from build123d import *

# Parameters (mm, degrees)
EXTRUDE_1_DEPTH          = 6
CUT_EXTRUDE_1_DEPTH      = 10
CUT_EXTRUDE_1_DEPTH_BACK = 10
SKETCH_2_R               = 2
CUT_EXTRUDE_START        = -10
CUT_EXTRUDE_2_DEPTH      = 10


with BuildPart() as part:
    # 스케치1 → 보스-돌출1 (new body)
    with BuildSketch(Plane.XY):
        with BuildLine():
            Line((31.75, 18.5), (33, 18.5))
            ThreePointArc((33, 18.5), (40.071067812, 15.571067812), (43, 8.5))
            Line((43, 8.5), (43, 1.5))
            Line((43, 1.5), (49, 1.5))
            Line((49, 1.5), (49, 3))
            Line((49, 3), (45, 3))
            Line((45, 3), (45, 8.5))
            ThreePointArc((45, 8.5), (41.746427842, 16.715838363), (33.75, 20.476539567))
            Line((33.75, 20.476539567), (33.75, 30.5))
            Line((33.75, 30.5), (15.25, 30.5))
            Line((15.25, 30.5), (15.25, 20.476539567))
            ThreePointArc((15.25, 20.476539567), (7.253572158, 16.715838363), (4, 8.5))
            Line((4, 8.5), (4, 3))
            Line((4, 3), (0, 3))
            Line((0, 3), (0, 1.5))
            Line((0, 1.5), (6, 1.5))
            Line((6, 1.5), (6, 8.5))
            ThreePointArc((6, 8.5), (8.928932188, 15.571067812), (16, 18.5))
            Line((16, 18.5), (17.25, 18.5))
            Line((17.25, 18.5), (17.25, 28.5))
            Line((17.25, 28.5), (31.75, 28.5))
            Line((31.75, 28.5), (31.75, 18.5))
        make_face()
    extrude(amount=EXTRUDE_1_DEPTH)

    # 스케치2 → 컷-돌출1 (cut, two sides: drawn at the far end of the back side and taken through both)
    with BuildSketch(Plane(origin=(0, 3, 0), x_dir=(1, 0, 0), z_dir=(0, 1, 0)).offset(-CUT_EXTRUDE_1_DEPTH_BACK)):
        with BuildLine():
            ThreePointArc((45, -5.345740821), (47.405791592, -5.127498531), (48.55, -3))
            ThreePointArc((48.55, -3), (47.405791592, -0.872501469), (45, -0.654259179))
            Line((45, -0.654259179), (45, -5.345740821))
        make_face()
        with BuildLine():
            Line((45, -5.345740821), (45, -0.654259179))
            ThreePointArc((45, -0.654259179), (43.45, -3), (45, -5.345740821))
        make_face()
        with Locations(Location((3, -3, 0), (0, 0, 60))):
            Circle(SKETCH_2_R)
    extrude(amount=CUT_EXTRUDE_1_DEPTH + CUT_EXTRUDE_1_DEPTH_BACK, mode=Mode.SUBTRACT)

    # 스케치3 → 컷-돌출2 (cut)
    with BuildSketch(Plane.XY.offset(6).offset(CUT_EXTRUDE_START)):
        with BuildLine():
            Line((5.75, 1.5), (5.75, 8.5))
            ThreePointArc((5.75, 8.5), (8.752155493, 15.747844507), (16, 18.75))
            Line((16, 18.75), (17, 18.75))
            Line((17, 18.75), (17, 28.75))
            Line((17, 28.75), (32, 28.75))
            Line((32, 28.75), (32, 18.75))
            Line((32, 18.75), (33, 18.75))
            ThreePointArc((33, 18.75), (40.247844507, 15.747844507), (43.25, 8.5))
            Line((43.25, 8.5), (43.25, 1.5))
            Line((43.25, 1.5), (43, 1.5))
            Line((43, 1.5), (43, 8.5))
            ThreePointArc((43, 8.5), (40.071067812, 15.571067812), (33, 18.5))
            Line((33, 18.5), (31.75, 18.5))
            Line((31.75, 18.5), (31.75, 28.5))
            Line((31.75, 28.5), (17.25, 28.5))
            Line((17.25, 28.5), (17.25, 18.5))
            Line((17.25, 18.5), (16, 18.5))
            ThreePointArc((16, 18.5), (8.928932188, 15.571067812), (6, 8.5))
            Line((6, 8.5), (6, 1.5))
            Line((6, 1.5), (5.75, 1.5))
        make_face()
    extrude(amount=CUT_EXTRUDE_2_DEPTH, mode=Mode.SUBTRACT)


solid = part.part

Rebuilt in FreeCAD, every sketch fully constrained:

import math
import FreeCAD as App
import Part
import Sketcher
Q = App.Units.Quantity

doc = App.newDocument("Part")
body = doc.addObject("PartDesign::Body", "Body")

sketch1 = body.newObject("Sketcher::SketchObject", "Sketch")
sketch1.AttachmentSupport = (doc.getObject("XY_Plane"), [""])
sketch1.MapMode = "FlatFace"
sketch1.addGeometry([
    Part.LineSegment(App.Vector(31.8, 18.5, 0), App.Vector(33, 18.5, 0)),
    Part.ArcOfCircle(Part.Circle(App.Vector(33, 8.5, 0), App.Vector(0, 0, 1), 10), math.radians(0), math.radians(90)),
    Part.LineSegment(App.Vector(43, 8.5, 0), App.Vector(43, 1.5, 0)),
    Part.LineSegment(App.Vector(43, 1.5, 0), App.Vector(49, 1.5, 0)),
    Part.LineSegment(App.Vector(49, 1.5, 0), App.Vector(49, 3, 0)),
    Part.LineSegment(App.Vector(49, 3, 0), App.Vector(45, 3, 0)),
    Part.LineSegment(App.Vector(45, 3, 0), App.Vector(45, 8.5, 0)),
    Part.ArcOfCircle(Part.Circle(App.Vector(33, 8.5, 0), App.Vector(0, 0, 1), 12), math.radians(0), math.radians(86)),
    Part.LineSegment(App.Vector(33.8, 20.5, 0), App.Vector(33.8, 30.5, 0)),
    Part.LineSegment(App.Vector(33.8, 30.5, 0), App.Vector(15.2, 30.5, 0)),
    Part.LineSegment(App.Vector(15.2, 30.5, 0), App.Vector(15.2, 20.5, 0)),
    Part.ArcOfCircle(Part.Circle(App.Vector(16, 8.5, 0), App.Vector(0, 0, 1), 12), math.radians(94), math.radians(180)),
    Part.LineSegment(App.Vector(4, 8.5, 0), App.Vector(4, 3, 0)),
    Part.LineSegment(App.Vector(4, 3, 0), App.Vector(0, 3, 0)),
    Part.LineSegment(App.Vector(0, 3, 0), App.Vector(0, 1.5, 0)),
    Part.LineSegment(App.Vector(0, 1.5, 0), App.Vector(6, 1.5, 0)),
    Part.LineSegment(App.Vector(6, 1.5, 0), App.Vector(6, 8.5, 0)),
    Part.ArcOfCircle(Part.Circle(App.Vector(16, 8.5, 0), App.Vector(0, 0, 1), 10), math.radians(90), math.radians(180)),
    Part.LineSegment(App.Vector(16, 18.5, 0), App.Vector(17.2, 18.5, 0)),
    Part.LineSegment(App.Vector(17.2, 18.5, 0), App.Vector(17.2, 28.5, 0)),
    Part.LineSegment(App.Vector(17.2, 28.5, 0), App.Vector(31.8, 28.5, 0)),
    Part.LineSegment(App.Vector(31.8, 28.5, 0), App.Vector(31.8, 18.5, 0)),
], False)
sketch1.addConstraint([
    Sketcher.Constraint("Tangent", 0, 2, 1, 2),
    Sketcher.Constraint("Tangent", 1, 1, 2, 1),
    Sketcher.Constraint("Coincident", 2, 2, 3, 1),
    Sketcher.Constraint("Coincident", 3, 2, 4, 1),
    Sketcher.Constraint("Coincident", 4, 2, 5, 1),
    Sketcher.Constraint("Coincident", 5, 2, 6, 1),
    Sketcher.Constraint("Tangent", 6, 2, 7, 1),
    Sketcher.Constraint("Coincident", 7, 2, 8, 1),
    Sketcher.Constraint("Coincident", 8, 2, 9, 1),
    Sketcher.Constraint("Coincident", 9, 2, 10, 1),
    Sketcher.Constraint("Coincident", 10, 2, 11, 1),
    Sketcher.Constraint("Tangent", 11, 2, 12, 1),
    Sketcher.Constraint("Coincident", 12, 2, 13, 1),
    Sketcher.Constraint("Coincident", 13, 2, 14, 1),
    Sketcher.Constraint("Coincident", 14, 2, 15, 1),
    Sketcher.Constraint("Coincident", 15, 2, 16, 1),
    Sketcher.Constraint("Tangent", 16, 2, 17, 2),
    Sketcher.Constraint("Tangent", 17, 1, 18, 1),
    Sketcher.Constraint("Coincident", 18, 2, 19, 1),
    Sketcher.Constraint("Coincident", 19, 2, 20, 1),
    Sketcher.Constraint("Coincident", 20, 2, 21, 1),
    Sketcher.Constraint("Coincident", 21, 2, 0, 1),
    Sketcher.Constraint("Horizontal", 0),
    Sketcher.Constraint("Vertical", 2),
    Sketcher.Constraint("Horizontal", 3),
    Sketcher.Constraint("Vertical", 4),
    Sketcher.Constraint("Horizontal", 5),
    Sketcher.Constraint("Vertical", 6),
    Sketcher.Constraint("Vertical", 8),
    Sketcher.Constraint("Horizontal", 9),
    Sketcher.Constraint("Vertical", 10),
    Sketcher.Constraint("Vertical", 12),
    Sketcher.Constraint("Horizontal", 13),
    Sketcher.Constraint("Vertical", 14),
    Sketcher.Constraint("Horizontal", 15),
    Sketcher.Constraint("Vertical", 16),
    Sketcher.Constraint("Horizontal", 18),
    Sketcher.Constraint("Vertical", 19),
    Sketcher.Constraint("Horizontal", 20),
    Sketcher.Constraint("Vertical", 21),
    Sketcher.Constraint("Coincident", 7, 3, 1, 3),
    Sketcher.Constraint("Coincident", 17, 3, 11, 3),
    Sketcher.Constraint("Equal", 7, 11),
    Sketcher.Constraint("Equal", 1, 17),
    Sketcher.Constraint("PointOnObject", 13, 2, -2),
    Sketcher.Constraint("Horizontal", 7, 3, 11, 3),
    Sketcher.Constraint("Horizontal", 7, 2, 10, 2),
    Sketcher.Constraint("Horizontal", 5, 2, 12, 2),
    Sketcher.Constraint("Horizontal", 3, 2, 14, 2),
    Sketcher.Constraint("Equal", 5, 13),
    Sketcher.Constraint("Equal", 0, 18),
    Sketcher.Constraint("Radius", 1, Q("10 mm")),
    Sketcher.Constraint("Radius", 7, Q("12 mm")),
    Sketcher.Constraint("DistanceX", 3, 1, 3, 2, Q("6 mm")),
    Sketcher.Constraint("DistanceY", 2, 2, 2, 1, Q("7 mm")),
    Sketcher.Constraint("DistanceY", 19, 1, 19, 2, Q("10 mm")),
    Sketcher.Constraint("DistanceX", 9, 2, 9, 1, Q("18.5 mm")),
    Sketcher.Constraint("DistanceX", 20, 1, 20, 2, Q("14.5 mm")),
    Sketcher.Constraint("DistanceY", 4, 1, 4, 2, Q("1.5 mm")),
    Sketcher.Constraint("DistanceX", -1, 1, 1, 3, Q("33 mm")),
    Sketcher.Constraint("DistanceY", -1, 1, 4, 2, Q("3 mm")),
    Sketcher.Constraint("DistanceY", 0, 2, 8, 2, Q("12 mm")),
])
pad1 = body.newObject("PartDesign::Pad", "Pad")
pad1.Profile = sketch1
pad1.Length = 6

sketch2 = body.newObject("Sketcher::SketchObject", "Sketch001")
sketch2.AttachmentSupport = (doc.getObject("XZ_Plane"), [""])
sketch2.MapMode = "FlatFace"
sketch2.AttachmentOffset = App.Placement(App.Vector(0, 0, -3), App.Rotation())
sketch2.addGeometry([
    Part.ArcOfCircle(Part.Circle(App.Vector(46, 3, 0), App.Vector(0, 0, 1), 2.5), math.radians(0), math.radians(113)),
    Part.ArcOfCircle(Part.Circle(App.Vector(46, 3, 0), App.Vector(0, 0, 1), 2.5), math.radians(-113), math.radians(0)),
    Part.ArcOfCircle(Part.Circle(App.Vector(46, 3, 0), App.Vector(0, 0, 1), 2.5), math.radians(113), math.radians(247)),
    Part.Circle(App.Vector(3, 3, 0), App.Vector(0, 0, 1), 2),
], False)
sketch2.addConstraint([
    Sketcher.Constraint("Tangent", 0, 1, 1, 2),
    Sketcher.Constraint("Tangent", 1, 1, 2, 2),
    Sketcher.Constraint("Tangent", 2, 1, 0, 2),
    Sketcher.Constraint("Horizontal", 2, 3, 3, 3),
    Sketcher.Constraint("Horizontal", 3, 3, 0, 1),
    Sketcher.Constraint("Vertical", 1, 1, 2, 1),
    Sketcher.Constraint("Diameter", 3, Q("4 mm")),
    Sketcher.Constraint("Radius", 0, Q("2.55 mm")),
    Sketcher.Constraint("DistanceX", -1, 1, 0, 3, Q("46 mm")),
    Sketcher.Constraint("DistanceY", -1, 1, 0, 3, Q("3 mm")),
    Sketcher.Constraint("DistanceX", -1, 1, 3, 3, Q("3 mm")),
    Sketcher.Constraint("DistanceX", -1, 1, 1, 1, Q("45 mm")),
])
pocket1 = body.newObject("PartDesign::Pocket", "Pocket")
pocket1.Profile = sketch2
pocket1.Type = "TwoLengths"
pocket1.Length = 10
pocket1.Length2 = 10

sketch3 = body.newObject("Sketcher::SketchObject", "Sketch002")
sketch3.AttachmentSupport = (doc.getObject("XY_Plane"), [""])
sketch3.MapMode = "FlatFace"
sketch3.AttachmentOffset = App.Placement(App.Vector(0, 0, -4), App.Rotation())
sketch3.addGeometry([
    Part.LineSegment(App.Vector(5.75, 8.5, 0), App.Vector(5.75, 1.5, 0)),
    Part.LineSegment(App.Vector(5.75, 1.5, 0), App.Vector(6, 1.5, 0)),
    Part.LineSegment(App.Vector(6, 1.5, 0), App.Vector(6, 8.5, 0)),
    Part.ArcOfCircle(Part.Circle(App.Vector(16, 8.5, 0), App.Vector(0, 0, 1), 10), math.radians(90), math.radians(180)),
    Part.LineSegment(App.Vector(16, 18.5, 0), App.Vector(17.25, 18.5, 0)),
    Part.LineSegment(App.Vector(17.25, 18.5, 0), App.Vector(17.25, 28.5, 0)),
    Part.LineSegment(App.Vector(17.25, 28.5, 0), App.Vector(31.75, 28.5, 0)),
    Part.LineSegment(App.Vector(31.75, 28.5, 0), App.Vector(31.75, 18.5, 0)),
    Part.LineSegment(App.Vector(31.75, 18.5, 0), App.Vector(33, 18.5, 0)),
    Part.ArcOfCircle(Part.Circle(App.Vector(33, 8.5, 0), App.Vector(0, 0, 1), 10), math.radians(0), math.radians(90)),
    Part.LineSegment(App.Vector(43, 8.5, 0), App.Vector(43, 1.5, 0)),
    Part.LineSegment(App.Vector(43, 1.5, 0), App.Vector(43.25, 1.5, 0)),
    Part.LineSegment(App.Vector(43.25, 1.5, 0), App.Vector(43.25, 8.5, 0)),
    Part.ArcOfCircle(Part.Circle(App.Vector(33, 8.5, 0), App.Vector(0, 0, 1), 10.25), math.radians(0), math.radians(90)),
    Part.LineSegment(App.Vector(33, 18.75, 0), App.Vector(32, 18.75, 0)),
    Part.LineSegment(App.Vector(32, 18.75, 0), App.Vector(32, 28.75, 0)),
    Part.LineSegment(App.Vector(32, 28.75, 0), App.Vector(17, 28.75, 0)),
    Part.LineSegment(App.Vector(17, 28.75, 0), App.Vector(17, 18.75, 0)),
    Part.LineSegment(App.Vector(17, 18.75, 0), App.Vector(16, 18.75, 0)),
    Part.ArcOfCircle(Part.Circle(App.Vector(16, 8.5, 0), App.Vector(0, 0, 1), 10.25), math.radians(90), math.radians(180)),
], False)
sketch3.addConstraint([
    Sketcher.Constraint("Coincident", 0, 2, 1, 1),
    Sketcher.Constraint("Coincident", 1, 2, 2, 1),
    Sketcher.Constraint("Tangent", 2, 2, 3, 2),
    Sketcher.Constraint("Tangent", 3, 1, 4, 1),
    Sketcher.Constraint("Coincident", 4, 2, 5, 1),
    Sketcher.Constraint("Coincident", 5, 2, 6, 1),
    Sketcher.Constraint("Coincident", 6, 2, 7, 1),
    Sketcher.Constraint("Coincident", 7, 2, 8, 1),
    Sketcher.Constraint("Tangent", 8, 2, 9, 2),
    Sketcher.Constraint("Tangent", 9, 1, 10, 1),
    Sketcher.Constraint("Coincident", 10, 2, 11, 1),
    Sketcher.Constraint("Coincident", 11, 2, 12, 1),
    Sketcher.Constraint("Tangent", 12, 2, 13, 1),
    Sketcher.Constraint("Tangent", 13, 2, 14, 1),
    Sketcher.Constraint("Coincident", 14, 2, 15, 1),
    Sketcher.Constraint("Coincident", 15, 2, 16, 1),
    Sketcher.Constraint("Coincident", 16, 2, 17, 1),
    Sketcher.Constraint("Coincident", 17, 2, 18, 1),
    Sketcher.Constraint("Tangent", 18, 2, 19, 1),
    Sketcher.Constraint("Tangent", 19, 2, 0, 1),
    Sketcher.Constraint("Vertical", 0),
    Sketcher.Constraint("Horizontal", 1),
    Sketcher.Constraint("Vertical", 2),
    Sketcher.Constraint("Horizontal", 4),
    Sketcher.Constraint("Vertical", 5),
    Sketcher.Constraint("Horizontal", 6),
    Sketcher.Constraint("Vertical", 7),
    Sketcher.Constraint("Horizontal", 8),
    Sketcher.Constraint("Vertical", 10),
    Sketcher.Constraint("Horizontal", 11),
    Sketcher.Constraint("Vertical", 12),
    Sketcher.Constraint("Horizontal", 14),
    Sketcher.Constraint("Vertical", 15),
    Sketcher.Constraint("Horizontal", 16),
    Sketcher.Constraint("Vertical", 17),
    Sketcher.Constraint("Horizontal", 18),
    Sketcher.Constraint("Coincident", 13, 3, 9, 3),
    Sketcher.Constraint("Coincident", 19, 3, 3, 3),
    Sketcher.Constraint("Equal", 3, 9),
    Sketcher.Constraint("Equal", 13, 19),
    Sketcher.Constraint("Horizontal", 3, 3, 9, 3),
    Sketcher.Constraint("Horizontal", 1, 2, 10, 2),
    Sketcher.Constraint("Equal", 4, 8),
    Sketcher.Constraint("Equal", 14, 18),
    Sketcher.Constraint("Equal", 7, 15),
    Sketcher.Constraint("Radius", 3, Q("10 mm")),
    Sketcher.Constraint("DistanceX", 14, 2, 14, 1, Q("1 mm")),
    Sketcher.Constraint("DistanceX", 16, 2, 16, 1, Q("15 mm")),
    Sketcher.Constraint("DistanceY", 0, 2, 0, 1, Q("7 mm")),
    Sketcher.Constraint("DistanceY", 5, 1, 5, 2, Q("10 mm")),
    Sketcher.Constraint("Radius", 13, Q("10.25 mm")),
    Sketcher.Constraint("DistanceX", 6, 1, 6, 2, Q("14.5 mm")),
    Sketcher.Constraint("DistanceX", -1, 1, 3, 3, Q("16 mm")),
    Sketcher.Constraint("DistanceY", -1, 1, 3, 3, Q("8.5 mm")),
])
pocket2 = body.newObject("PartDesign::Pocket", "Pocket001")
pocket2.Profile = sketch3
pocket2.Length = 10
pocket2.Reversed = True

doc.recompute()
